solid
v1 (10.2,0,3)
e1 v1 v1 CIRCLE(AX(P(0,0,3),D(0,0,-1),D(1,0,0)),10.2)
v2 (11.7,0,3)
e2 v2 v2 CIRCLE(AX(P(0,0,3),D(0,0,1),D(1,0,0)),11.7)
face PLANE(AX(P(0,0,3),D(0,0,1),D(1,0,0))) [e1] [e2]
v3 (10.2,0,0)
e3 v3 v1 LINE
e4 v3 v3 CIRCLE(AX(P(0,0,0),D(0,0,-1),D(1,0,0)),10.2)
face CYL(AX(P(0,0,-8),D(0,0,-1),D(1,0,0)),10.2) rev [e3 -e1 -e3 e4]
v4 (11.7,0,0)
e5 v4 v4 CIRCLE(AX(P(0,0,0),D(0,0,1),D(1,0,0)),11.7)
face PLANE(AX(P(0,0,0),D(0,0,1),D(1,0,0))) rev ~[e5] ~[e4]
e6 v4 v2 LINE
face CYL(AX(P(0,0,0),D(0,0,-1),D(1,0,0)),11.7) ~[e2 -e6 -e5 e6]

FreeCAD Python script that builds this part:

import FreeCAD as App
import Part
import Sketcher

doc = App.newDocument("Part")
params = doc.addObject("Spreadsheet::Sheet", "Params")
for row, (alias, value) in enumerate([
    ("sketch1_diameter", "20.4 mm"),
    ("pad1_length", "18 mm"),
    ("sketch2_diameter", "23.4 mm"),
    ("pad2_length", "3 mm"),
], start=1):
    params.set(f"A{row}", alias)
    params.set(f"B{row}", "=" + value)
    params.setAlias(f"B{row}", alias)

body = doc.addObject("PartDesign::Body", "Body")

sketch1 = body.newObject("Sketcher::SketchObject", "Sketch")
sketch1.AttachmentSupport = (doc.getObject("XY_Plane"), [""])
sketch1.MapMode = "FlatFace"
sketch1.AttachmentOffset = App.Placement(App.Vector(0, 0, -8), App.Rotation())
sketch1.addGeometry(Part.Circle(App.Vector(0, 0, 0), App.Vector(0, 0, 1), 10), False)
sketch1.addConstraint(Sketcher.Constraint("Coincident", 0, 3, -1, 1))
sketch1.addConstraint(Sketcher.Constraint("Diameter", 0, 20.4))
sketch1.setExpression("Constraints[1]", "Params.sketch1_diameter")
pad1 = body.newObject("PartDesign::Pad", "Pad")
pad1.Profile = sketch1
pad1.setExpression("Length", "Params.pad1_length")
body2 = doc.addObject("PartDesign::Body", "Body001")

sketch2 = body2.newObject("Sketcher::SketchObject", "Sketch001")
sketch2.AttachmentSupport = (doc.getObject("XY_Plane001"), [""])
sketch2.MapMode = "FlatFace"
sketch2.addGeometry(Part.Circle(App.Vector(0, 0, 0), App.Vector(0, 0, 1), 12), False)
sketch2.addConstraint(Sketcher.Constraint("Coincident", 0, 3, -1, 1))
sketch2.addConstraint(Sketcher.Constraint("Diameter", 0, 23.4))
sketch2.setExpression("Constraints[1]", "Params.sketch2_diameter")
pad2 = body2.newObject("PartDesign::Pad", "Pad001")
pad2.Profile = sketch2
pad2.setExpression("Length", "Params.pad2_length")
doc.recompute()

boolean = body2.newObject("PartDesign::Boolean", "Boolean")
boolean.Type = "Cut"
boolean.addObjects([body])

doc.recompute()
